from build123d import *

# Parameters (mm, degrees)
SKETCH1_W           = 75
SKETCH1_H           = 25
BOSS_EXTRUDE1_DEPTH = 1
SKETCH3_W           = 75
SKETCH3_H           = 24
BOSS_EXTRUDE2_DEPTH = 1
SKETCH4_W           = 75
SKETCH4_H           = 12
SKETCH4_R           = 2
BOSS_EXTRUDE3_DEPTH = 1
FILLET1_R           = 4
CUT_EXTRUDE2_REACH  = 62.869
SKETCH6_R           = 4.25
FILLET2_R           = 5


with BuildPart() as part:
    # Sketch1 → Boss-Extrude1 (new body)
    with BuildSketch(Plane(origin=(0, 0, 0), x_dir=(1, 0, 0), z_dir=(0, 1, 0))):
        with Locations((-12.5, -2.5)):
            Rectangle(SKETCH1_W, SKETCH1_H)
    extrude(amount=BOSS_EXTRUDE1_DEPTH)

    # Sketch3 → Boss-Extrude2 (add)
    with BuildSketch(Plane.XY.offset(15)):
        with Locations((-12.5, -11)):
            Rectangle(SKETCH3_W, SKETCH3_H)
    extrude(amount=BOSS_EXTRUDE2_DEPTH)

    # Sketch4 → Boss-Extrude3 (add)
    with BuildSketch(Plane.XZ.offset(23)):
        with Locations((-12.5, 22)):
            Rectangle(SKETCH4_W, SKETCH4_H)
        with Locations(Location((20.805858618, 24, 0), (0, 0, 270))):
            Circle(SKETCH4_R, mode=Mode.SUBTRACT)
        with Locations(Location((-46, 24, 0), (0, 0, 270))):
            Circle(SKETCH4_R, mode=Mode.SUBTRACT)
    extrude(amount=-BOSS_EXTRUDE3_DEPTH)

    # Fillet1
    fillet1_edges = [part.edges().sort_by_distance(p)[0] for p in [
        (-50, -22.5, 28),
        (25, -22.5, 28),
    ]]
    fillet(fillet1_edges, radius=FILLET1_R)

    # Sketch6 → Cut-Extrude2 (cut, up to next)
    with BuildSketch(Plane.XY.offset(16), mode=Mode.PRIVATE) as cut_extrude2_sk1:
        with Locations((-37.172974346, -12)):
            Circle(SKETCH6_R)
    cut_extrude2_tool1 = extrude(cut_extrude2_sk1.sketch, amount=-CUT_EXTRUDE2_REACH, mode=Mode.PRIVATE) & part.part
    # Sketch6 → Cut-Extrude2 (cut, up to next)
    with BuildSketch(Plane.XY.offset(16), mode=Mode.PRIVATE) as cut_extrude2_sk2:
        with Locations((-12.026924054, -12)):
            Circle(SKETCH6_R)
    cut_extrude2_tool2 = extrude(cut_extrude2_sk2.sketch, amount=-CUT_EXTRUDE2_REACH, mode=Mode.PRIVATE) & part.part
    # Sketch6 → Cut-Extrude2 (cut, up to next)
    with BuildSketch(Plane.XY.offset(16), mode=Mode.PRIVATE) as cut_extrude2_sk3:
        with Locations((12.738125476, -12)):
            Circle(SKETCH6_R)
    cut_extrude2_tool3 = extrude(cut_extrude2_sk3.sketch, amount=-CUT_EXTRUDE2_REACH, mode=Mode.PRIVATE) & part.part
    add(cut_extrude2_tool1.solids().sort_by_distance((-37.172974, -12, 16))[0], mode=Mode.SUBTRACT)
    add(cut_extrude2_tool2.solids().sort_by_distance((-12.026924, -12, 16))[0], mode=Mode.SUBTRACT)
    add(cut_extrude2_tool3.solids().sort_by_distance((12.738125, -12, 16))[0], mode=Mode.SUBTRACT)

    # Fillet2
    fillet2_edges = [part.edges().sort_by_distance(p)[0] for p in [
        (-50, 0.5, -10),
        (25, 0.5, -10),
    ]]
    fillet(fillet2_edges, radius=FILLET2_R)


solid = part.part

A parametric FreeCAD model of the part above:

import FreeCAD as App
import Part
import Sketcher

V = App.Vector


def edges_at(feature, points):
    """Names of the edges that pass closest to the given points."""
    edges = feature.Shape.Edges
    near = lambda p: min(range(len(edges)), key=lambda i: edges[i].distToShape(Part.Vertex(*p))[0])
    return sorted({f"Edge{near(p) + 1}" for p in points})

doc = App.newDocument("Part")
body = doc.addObject("PartDesign::Body", "Body")

sketch1 = doc.addObject("Sketcher::SketchObject", "Sketch")
body.addObject(sketch1)
sketch1.AttachmentSupport = (doc.XZ_Plane, [""])
sketch1.MapMode = "FlatFace"
sketch1.addGeometry([
    Part.LineSegment(V(-50, -10, 0), V(-50, 15, 0)),
    Part.LineSegment(V(-50, 15, 0), V(25, 15, 0)),
    Part.LineSegment(V(25, 15, 0), V(25, -10, 0)),
    Part.LineSegment(V(25, -10, 0), V(-50, -10, 0)),
], False)
sketch1.addConstraint([
    Sketcher.Constraint("Coincident", 0, 2, 1, 1),
    Sketcher.Constraint("Coincident", 1, 2, 2, 1),
    Sketcher.Constraint("Coincident", 2, 2, 3, 1),
    Sketcher.Constraint("Coincident", 3, 2, 0, 1),
    Sketcher.Constraint("Vertical", 0),
    Sketcher.Constraint("Horizontal", 1),
    Sketcher.Constraint("Vertical", 2),
    Sketcher.Constraint("Horizontal", 3),
    Sketcher.Constraint("DistanceX", 1, 1, 1, 2, 75.0),
    Sketcher.Constraint("DistanceY", 0, 1, 0, 2, 25.0),
    Sketcher.Constraint("DistanceX", 0, 2, -1, 1, 50.0),
    Sketcher.Constraint("DistanceY", -1, 1, 0, 2, 15.0),
])
pad1 = doc.addObject("PartDesign::Pad", "Pad")
body.addObject(pad1)
pad1.Profile = sketch1
pad1.Length = 1
pad1.Reversed = True

sketch2 = doc.addObject("Sketcher::SketchObject", "Sketch001")
body.addObject(sketch2)
sketch2.AttachmentSupport = (doc.XY_Plane, [""])
sketch2.MapMode = "FlatFace"
sketch2.AttachmentOffset = App.Placement(V(0, 0, 15), App.Rotation())
sketch2.addGeometry([
    Part.LineSegment(V(-50, 1, 0), V(-50, -23, 0)),
    Part.LineSegment(V(-50, -23, 0), V(25, -23, 0)),
    Part.LineSegment(V(25, -23, 0), V(25, 1, 0)),
    Part.LineSegment(V(25, 1, 0), V(-50, 1, 0)),
], False)
sketch2.addConstraint([
    Sketcher.Constraint("Coincident", 0, 2, 1, 1),
    Sketcher.Constraint("Coincident", 1, 2, 2, 1),
    Sketcher.Constraint("Coincident", 2, 2, 3, 1),
    Sketcher.Constraint("Coincident", 3, 2, 0, 1),
    Sketcher.Constraint("Vertical", 0),
    Sketcher.Constraint("Horizontal", 1),
    Sketcher.Constraint("Vertical", 2),
    Sketcher.Constraint("Horizontal", 3),
    Sketcher.Constraint("DistanceX", 1, 1, 1, 2, 75.0),
    Sketcher.Constraint("DistanceY", 0, 2, 0, 1, 24.0),
    Sketcher.Constraint("DistanceX", 0, 2, -1, 1, 50.0),
    Sketcher.Constraint("DistanceY", 0, 2, -1, 1, 23.0),
])
pad2 = doc.addObject("PartDesign::Pad", "Pad001")
body.addObject(pad2)
pad2.Profile = sketch2
pad2.Length = 1

sketch3 = doc.addObject("Sketcher::SketchObject", "Sketch002")
body.addObject(sketch3)
sketch3.AttachmentSupport = (doc.XZ_Plane, [""])
sketch3.MapMode = "FlatFace"
sketch3.AttachmentOffset = App.Placement(V(0, 0, 23), App.Rotation())
sketch3.addGeometry([
    Part.LineSegment(V(-50, 28, 0), V(-50, 16, 0)),
    Part.LineSegment(V(-50, 16, 0), V(25, 16, 0)),
    Part.LineSegment(V(25, 16, 0), V(25, 28, 0)),
    Part.LineSegment(V(25, 28, 0), V(-50, 28, 0)),
    Part.Circle(V(-46, 24, 0), V(0, 0, 1), 2),
    Part.Circle(V(20.8, 24, 0), V(0, 0, 1), 2),
], False)
sketch3.addConstraint([
    Sketcher.Constraint("Coincident", 0, 2, 1, 1),
    Sketcher.Constraint("Coincident", 1, 2, 2, 1),
    Sketcher.Constraint("Coincident", 2, 2, 3, 1),
    Sketcher.Constraint("Coincident", 3, 2, 0, 1),
    Sketcher.Constraint("Vertical", 0),
    Sketcher.Constraint("Horizontal", 1),
    Sketcher.Constraint("Vertical", 2),
    Sketcher.Constraint("Horizontal", 3),
    Sketcher.Constraint("Equal", 4, 5),
    Sketcher.Constraint("Horizontal", 4, 3, 5, 3),
    Sketcher.Constraint("Diameter", 4, 4.0),
    Sketcher.Constraint("DistanceX", 1, 1, 1, 2, 75.0),
    Sketcher.Constraint("DistanceY", 0, 2, 0, 1, 12.0),
    Sketcher.Constraint("DistanceX", 4, 3, -1, 1, 46.0),
    Sketcher.Constraint("DistanceY", -1, 1, 4, 3, 24.0),
    Sketcher.Constraint("DistanceX", 0, 2, -1, 1, 50.0),
    Sketcher.Constraint("DistanceY", -1, 1, 0, 2, 16.0),
    Sketcher.Constraint("DistanceX", -1, 1, 5, 3, 20.805859),
])
pad3 = doc.addObject("PartDesign::Pad", "Pad002")
body.addObject(pad3)
pad3.Profile = sketch3
pad3.Length = 1
pad3.Reversed = True
doc.recompute()

fillet = doc.addObject("PartDesign::Fillet", "Fillet")
body.addObject(fillet)
fillet.Base = (pad3, edges_at(pad3, [(-50, -22.5, 28), (25, -22.5, 28)]))
fillet.Radius = 4

sketch4 = doc.addObject("Sketcher::SketchObject", "Sketch003")
body.addObject(sketch4)
sketch4.AttachmentSupport = (doc.XY_Plane, [""])
sketch4.MapMode = "FlatFace"
sketch4.AttachmentOffset = App.Placement(V(0, 0, 16), App.Rotation())
sketch4.addGeometry(Part.Circle(V(-37.2, -12, 0), V(0, 0, 1), 4.2), False)
sketch4.addConstraint([
    Sketcher.Constraint("Diameter", 0, 8.5),
    Sketcher.Constraint("DistanceY", 0, 3, -1, 1, 12.0),
    Sketcher.Constraint("DistanceX", 0, 3, -1, 1, 37.172974),
])
pocket1 = doc.addObject("PartDesign::Pocket", "Pocket")
body.addObject(pocket1)
pocket1.Profile = sketch4
pocket1.Type = "UpToFirst"

sketch5 = doc.addObject("Sketcher::SketchObject", "Sketch004")
body.addObject(sketch5)
sketch5.AttachmentSupport = (doc.XY_Plane, [""])
sketch5.MapMode = "FlatFace"
sketch5.AttachmentOffset = App.Placement(V(0, 0, 16), App.Rotation())
sketch5.addGeometry(Part.Circle(V(-12, -12, 0), V(0, 0, 1), 4.2), False)
sketch5.addConstraint([
    Sketcher.Constraint("Diameter", 0, 8.5),
    Sketcher.Constraint("DistanceY", 0, 3, -1, 1, 12.0),
    Sketcher.Constraint("DistanceX", 0, 3, -1, 1, 12.026924),
])
pocket2 = doc.addObject("PartDesign::Pocket", "Pocket001")
body.addObject(pocket2)
pocket2.Profile = sketch5
pocket2.Type = "UpToFirst"

sketch6 = doc.addObject("Sketcher::SketchObject", "Sketch005")
body.addObject(sketch6)
sketch6.AttachmentSupport = (doc.XY_Plane, [""])
sketch6.MapMode = "FlatFace"
sketch6.AttachmentOffset = App.Placement(V(0, 0, 16), App.Rotation())
sketch6.addGeometry(Part.Circle(V(12.7, -12, 0), V(0, 0, 1), 4.2), False)
sketch6.addConstraint([
    Sketcher.Constraint("Diameter", 0, 8.5),
    Sketcher.Constraint("DistanceY", 0, 3, -1, 1, 12.0),
    Sketcher.Constraint("DistanceX", -1, 1, 0, 3, 12.738125),
])
pocket3 = doc.addObject("PartDesign::Pocket", "Pocket002")
body.addObject(pocket3)
pocket3.Profile = sketch6
pocket3.Type = "UpToFirst"
doc.recompute()

fillet2 = doc.addObject("PartDesign::Fillet", "Fillet001")
body.addObject(fillet2)
fillet2.Base = (pocket3, edges_at(pocket3, [(-50, 0.5, -10), (25, 0.5, -10)]))
fillet2.Radius = 5

doc.recompute()
